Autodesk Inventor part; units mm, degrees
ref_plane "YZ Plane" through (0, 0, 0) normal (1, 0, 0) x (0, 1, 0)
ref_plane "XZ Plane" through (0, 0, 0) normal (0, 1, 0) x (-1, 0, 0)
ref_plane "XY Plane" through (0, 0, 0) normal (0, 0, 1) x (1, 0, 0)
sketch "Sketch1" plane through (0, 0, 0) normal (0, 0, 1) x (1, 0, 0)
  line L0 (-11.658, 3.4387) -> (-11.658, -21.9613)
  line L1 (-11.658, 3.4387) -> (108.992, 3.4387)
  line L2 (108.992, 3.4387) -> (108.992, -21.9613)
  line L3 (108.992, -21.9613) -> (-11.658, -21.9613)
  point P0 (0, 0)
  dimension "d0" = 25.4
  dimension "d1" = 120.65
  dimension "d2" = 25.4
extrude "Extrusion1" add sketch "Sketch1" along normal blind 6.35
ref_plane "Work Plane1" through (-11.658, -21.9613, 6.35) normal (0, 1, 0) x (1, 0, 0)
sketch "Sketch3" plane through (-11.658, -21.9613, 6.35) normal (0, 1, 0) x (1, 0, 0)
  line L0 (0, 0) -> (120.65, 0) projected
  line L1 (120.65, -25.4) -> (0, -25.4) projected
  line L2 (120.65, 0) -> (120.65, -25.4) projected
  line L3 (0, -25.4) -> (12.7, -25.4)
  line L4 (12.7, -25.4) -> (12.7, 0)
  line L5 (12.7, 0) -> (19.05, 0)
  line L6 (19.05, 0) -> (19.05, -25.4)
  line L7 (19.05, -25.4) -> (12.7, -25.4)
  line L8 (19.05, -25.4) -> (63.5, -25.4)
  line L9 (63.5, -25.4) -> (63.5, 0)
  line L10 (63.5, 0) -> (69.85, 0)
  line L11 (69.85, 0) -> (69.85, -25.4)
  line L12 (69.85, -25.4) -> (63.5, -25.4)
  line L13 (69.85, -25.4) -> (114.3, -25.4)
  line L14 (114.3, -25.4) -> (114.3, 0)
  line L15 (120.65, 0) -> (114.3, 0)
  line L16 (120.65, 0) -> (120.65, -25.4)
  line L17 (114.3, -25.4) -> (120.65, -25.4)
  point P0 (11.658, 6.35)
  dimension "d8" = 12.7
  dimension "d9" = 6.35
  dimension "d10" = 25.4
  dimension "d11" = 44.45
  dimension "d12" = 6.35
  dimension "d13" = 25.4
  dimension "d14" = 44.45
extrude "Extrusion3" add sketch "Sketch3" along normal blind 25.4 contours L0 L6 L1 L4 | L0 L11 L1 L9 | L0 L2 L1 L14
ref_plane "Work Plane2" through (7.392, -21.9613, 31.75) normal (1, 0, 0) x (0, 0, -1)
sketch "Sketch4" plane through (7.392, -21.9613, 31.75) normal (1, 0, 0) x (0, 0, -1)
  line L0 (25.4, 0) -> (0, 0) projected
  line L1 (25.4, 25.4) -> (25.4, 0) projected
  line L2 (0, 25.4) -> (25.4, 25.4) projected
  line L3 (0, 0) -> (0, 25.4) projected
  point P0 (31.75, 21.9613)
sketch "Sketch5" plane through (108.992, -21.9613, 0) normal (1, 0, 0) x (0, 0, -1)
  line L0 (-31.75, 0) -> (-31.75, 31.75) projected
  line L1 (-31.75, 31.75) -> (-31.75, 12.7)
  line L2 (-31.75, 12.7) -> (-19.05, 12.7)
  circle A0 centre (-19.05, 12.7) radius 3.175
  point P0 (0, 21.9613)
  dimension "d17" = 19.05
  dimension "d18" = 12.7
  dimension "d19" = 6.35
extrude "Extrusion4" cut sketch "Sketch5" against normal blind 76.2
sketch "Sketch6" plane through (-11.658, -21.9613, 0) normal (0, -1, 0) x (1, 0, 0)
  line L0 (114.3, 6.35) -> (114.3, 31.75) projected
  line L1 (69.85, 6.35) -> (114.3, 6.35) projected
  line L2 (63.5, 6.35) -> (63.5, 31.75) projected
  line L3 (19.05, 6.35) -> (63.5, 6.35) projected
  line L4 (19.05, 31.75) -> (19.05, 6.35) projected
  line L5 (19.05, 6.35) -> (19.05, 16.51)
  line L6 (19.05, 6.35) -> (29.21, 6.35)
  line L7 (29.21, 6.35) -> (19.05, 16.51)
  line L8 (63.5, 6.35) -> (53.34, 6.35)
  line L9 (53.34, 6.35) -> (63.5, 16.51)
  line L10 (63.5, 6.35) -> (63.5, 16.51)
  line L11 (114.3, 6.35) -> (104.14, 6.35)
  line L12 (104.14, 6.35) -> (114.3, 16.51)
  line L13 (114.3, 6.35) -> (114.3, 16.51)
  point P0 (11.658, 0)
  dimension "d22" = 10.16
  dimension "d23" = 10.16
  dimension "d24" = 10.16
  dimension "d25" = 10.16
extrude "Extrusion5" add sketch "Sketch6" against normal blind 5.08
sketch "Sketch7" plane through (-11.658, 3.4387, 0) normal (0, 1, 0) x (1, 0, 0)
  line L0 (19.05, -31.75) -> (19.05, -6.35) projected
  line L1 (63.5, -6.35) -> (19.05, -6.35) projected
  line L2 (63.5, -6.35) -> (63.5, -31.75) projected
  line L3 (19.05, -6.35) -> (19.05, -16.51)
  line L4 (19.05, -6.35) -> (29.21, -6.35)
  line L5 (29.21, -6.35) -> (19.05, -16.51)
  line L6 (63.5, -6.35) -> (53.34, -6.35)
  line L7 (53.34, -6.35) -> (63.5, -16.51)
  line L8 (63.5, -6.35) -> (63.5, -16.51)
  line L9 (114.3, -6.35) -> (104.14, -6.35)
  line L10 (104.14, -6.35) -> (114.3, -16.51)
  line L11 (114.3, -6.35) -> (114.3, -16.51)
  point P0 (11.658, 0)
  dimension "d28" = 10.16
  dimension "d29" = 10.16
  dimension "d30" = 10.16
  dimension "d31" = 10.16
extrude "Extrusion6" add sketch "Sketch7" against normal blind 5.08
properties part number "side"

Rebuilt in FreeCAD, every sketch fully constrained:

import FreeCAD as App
import Part
import Sketcher
Q = App.Units.Quantity

doc = App.newDocument("Part")
body = doc.addObject("PartDesign::Body", "Body")

sketch1 = doc.addObject("Sketcher::SketchObject", "Sketch")
body.addObject(sketch1)
sketch1.AttachmentSupport = (doc.XY_Plane, [""])
sketch1.MapMode = "FlatFace"
sketch1.addGeometry([
    Part.LineSegment(App.Vector(109, 3, 0), App.Vector(-12, 3, 0)),
    Part.LineSegment(App.Vector(-12, 3, 0), App.Vector(-12, -22, 0)),
    Part.LineSegment(App.Vector(-12, -22, 0), App.Vector(109, -22, 0)),
    Part.LineSegment(App.Vector(109, -22, 0), App.Vector(109, 3, 0)),
], False)
sketch1.addConstraint([
    Sketcher.Constraint("Coincident", 0, 2, 1, 1),
    Sketcher.Constraint("Coincident", 1, 2, 2, 1),
    Sketcher.Constraint("Coincident", 2, 2, 3, 1),
    Sketcher.Constraint("Coincident", 3, 2, 0, 1),
    Sketcher.Constraint("Horizontal", 0),
    Sketcher.Constraint("Vertical", 1),
    Sketcher.Constraint("Horizontal", 2),
    Sketcher.Constraint("Vertical", 3),
    Sketcher.Constraint("DistanceY", 1, 2, 1, 1, Q("1 in")),
    Sketcher.Constraint("DistanceX", 0, 2, 0, 1, Q("4.75 in")),
    Sketcher.Constraint("DistanceX", 0, 2, -1, 1, 11.658),
    Sketcher.Constraint("DistanceY", -1, 1, 0, 2, 3.4387),
])
pad1 = doc.addObject("PartDesign::Pad", "Pad")
body.addObject(pad1)
pad1.Profile = sketch1
pad1.Length = Q("0.25 in")

sketch2 = doc.addObject("Sketcher::SketchObject", "Sketch001")
body.addObject(sketch2)
sketch2.AttachmentSupport = (doc.XZ_Plane, [""])
sketch2.MapMode = "FlatFace"
sketch2.AttachmentOffset = App.Placement(App.Vector(0, 0, 21.9613), App.Rotation())
sketch2.addGeometry([
    Part.LineSegment(App.Vector(7, 6, 0), App.Vector(1, 6, 0)),
    Part.LineSegment(App.Vector(1, 6, 0), App.Vector(1, 32, 0)),
    Part.LineSegment(App.Vector(1, 32, 0), App.Vector(7, 32, 0)),
    Part.LineSegment(App.Vector(7, 32, 0), App.Vector(7, 6, 0)),
    Part.LineSegment(App.Vector(58, 6, 0), App.Vector(52, 6, 0)),
    Part.LineSegment(App.Vector(52, 6, 0), App.Vector(52, 32, 0)),
    Part.LineSegment(App.Vector(52, 32, 0), App.Vector(58, 32, 0)),
    Part.LineSegment(App.Vector(58, 32, 0), App.Vector(58, 6, 0)),
    Part.LineSegment(App.Vector(109, 6, 0), App.Vector(103, 6, 0)),
    Part.LineSegment(App.Vector(103, 6, 0), App.Vector(103, 32, 0)),
    Part.LineSegment(App.Vector(103, 32, 0), App.Vector(109, 32, 0)),
    Part.LineSegment(App.Vector(109, 32, 0), App.Vector(109, 6, 0)),
], False)
sketch2.addConstraint([
    Sketcher.Constraint("Coincident", 0, 2, 1, 1),
    Sketcher.Constraint("Coincident", 1, 2, 2, 1),
    Sketcher.Constraint("Coincident", 2, 2, 3, 1),
    Sketcher.Constraint("Coincident", 3, 2, 0, 1),
    Sketcher.Constraint("Coincident", 4, 2, 5, 1),
    Sketcher.Constraint("Coincident", 5, 2, 6, 1),
    Sketcher.Constraint("Coincident", 6, 2, 7, 1),
    Sketcher.Constraint("Coincident", 7, 2, 4, 1),
    Sketcher.Constraint("Coincident", 8, 2, 9, 1),
    Sketcher.Constraint("Coincident", 9, 2, 10, 1),
    Sketcher.Constraint("Coincident", 10, 2, 11, 1),
    Sketcher.Constraint("Coincident", 11, 2, 8, 1),
    Sketcher.Constraint("Horizontal", 0),
    Sketcher.Constraint("Vertical", 1),
    Sketcher.Constraint("Horizontal", 2),
    Sketcher.Constraint("Vertical", 3),
    Sketcher.Constraint("Horizontal", 4),
    Sketcher.Constraint("Vertical", 5),
    Sketcher.Constraint("Horizontal", 6),
    Sketcher.Constraint("Vertical", 7),
    Sketcher.Constraint("Horizontal", 8),
    Sketcher.Constraint("Vertical", 9),
    Sketcher.Constraint("Horizontal", 10),
    Sketcher.Constraint("Vertical", 11),
    Sketcher.Constraint("Horizontal", 3, 2, 4, 2),
    Sketcher.Constraint("Horizontal", 2, 2, 5, 2),
    Sketcher.Constraint("Horizontal", 7, 2, 8, 2),
    Sketcher.Constraint("Horizontal", 6, 2, 9, 2),
    Sketcher.Constraint("Equal", 2, 4),
    Sketcher.Constraint("Equal", 6, 8),
    Sketcher.Constraint("DistanceY", 1, 1, 1, 2, Q("1 in")),
    Sketcher.Constraint("DistanceX", 0, 2, 0, 1, Q("0.25 in")),
    Sketcher.Constraint("DistanceY", -1, 1, 0, 2, Q("0.25 in")),
    Sketcher.Constraint("DistanceX", 3, 2, 4, 2, Q("1.75 in")),
    Sketcher.Constraint("DistanceX", 7, 2, 8, 2, Q("1.75 in")),
    Sketcher.Constraint("DistanceX", -1, 1, 0, 2, 1.042),
])
pad2 = doc.addObject("PartDesign::Pad", "Pad001")
body.addObject(pad2)
pad2.Profile = sketch2
pad2.Length = Q("1 in")
pad2.Reversed = True

sketch3 = doc.addObject("Sketcher::SketchObject", "Sketch002")
body.addObject(sketch3)
sketch3.AttachmentSupport = (doc.YZ_Plane, [""])
sketch3.MapMode = "FlatFace"
sketch3.AttachmentOffset = App.Placement(App.Vector(0, 0, 108.992), App.Rotation())
sketch3.addGeometry(Part.Circle(App.Vector(-9.3, 19.1, 0), App.Vector(0, 0, 1), 3.2), False)
sketch3.addConstraint([
    Sketcher.Constraint("Diameter", 0, Q("0.25 in")),
    Sketcher.Constraint("DistanceY", -1, 1, 0, 3, Q("0.75 in")),
    Sketcher.Constraint("DistanceX", 0, 3, -1, 1, 9.2613),
])
pocket1 = doc.addObject("PartDesign::Pocket", "Pocket")
body.addObject(pocket1)
pocket1.Profile = sketch3
pocket1.Length = Q("3 in")

sketch4 = doc.addObject("Sketcher::SketchObject", "Sketch003")
body.addObject(sketch4)
sketch4.AttachmentSupport = (doc.XZ_Plane, [""])
sketch4.MapMode = "FlatFace"
sketch4.AttachmentOffset = App.Placement(App.Vector(0, 0, 21.9613), App.Rotation())
sketch4.addGeometry([
    Part.LineSegment(App.Vector(92, 6, 0), App.Vector(103, 6, 0)),
    Part.LineSegment(App.Vector(103, 6, 0), App.Vector(103, 17, 0)),
    Part.LineSegment(App.Vector(103, 17, 0), App.Vector(92, 6, 0)),
    Part.LineSegment(App.Vector(42, 6, 0), App.Vector(52, 6, 0)),
    Part.LineSegment(App.Vector(52, 6, 0), App.Vector(52, 17, 0)),
    Part.LineSegment(App.Vector(52, 17, 0), App.Vector(42, 6, 0)),
    Part.LineSegment(App.Vector(7, 6, 0), App.Vector(18, 6, 0)),
    Part.LineSegment(App.Vector(18, 6, 0), App.Vector(7, 17, 0)),
    Part.LineSegment(App.Vector(7, 17, 0), App.Vector(7, 6, 0)),
], False)
sketch4.addConstraint([
    Sketcher.Constraint("Coincident", 0, 2, 1, 1),
    Sketcher.Constraint("Coincident", 1, 2, 2, 1),
    Sketcher.Constraint("Coincident", 2, 2, 0, 1),
    Sketcher.Constraint("Coincident", 3, 2, 4, 1),
    Sketcher.Constraint("Coincident", 4, 2, 5, 1),
    Sketcher.Constraint("Coincident", 5, 2, 3, 1),
    Sketcher.Constraint("Coincident", 6, 2, 7, 1),
    Sketcher.Constraint("Coincident", 7, 2, 8, 1),
    Sketcher.Constraint("Coincident", 8, 2, 6, 1),
    Sketcher.Constraint("Horizontal", 0),
    Sketcher.Constraint("Vertical", 1),
    Sketcher.Constraint("Horizontal", 3),
    Sketcher.Constraint("Vertical", 4),
    Sketcher.Constraint("Horizontal", 6),
    Sketcher.Constraint("Vertical", 8),
    Sketcher.Constraint("Parallel", 2, 5),
    Sketcher.Constraint("Perpendicular", 5, 7),
    Sketcher.Constraint("Horizontal", 2, 2, 3, 2),
    Sketcher.Constraint("Horizontal", 1, 2, 4, 2),
    Sketcher.Constraint("Horizontal", 5, 2, 6, 2),
    Sketcher.Constraint("Horizontal", 4, 2, 7, 2),
    Sketcher.Constraint("Equal", 3, 6),
    Sketcher.Constraint("DistanceX", 0, 1, 0, 2, Q("0.4 in")),
    Sketcher.Constraint("DistanceX", 3, 2, 0, 2, Q("2 in")),
    Sketcher.Constraint("DistanceY", -1, 1, 0, 2, Q("0.25 in")),
    Sketcher.Constraint("DistanceX", 6, 2, 5, 2, Q("0.95 in")),
    Sketcher.Constraint("DistanceX", -1, 1, 0, 2, 102.642),
])
pad3 = doc.addObject("PartDesign::Pad", "Pad002")
body.addObject(pad3)
pad3.Profile = sketch4
pad3.Length = Q("0.2 in")
pad3.Reversed = True

sketch5 = doc.addObject("Sketcher::SketchObject", "Sketch004")
body.addObject(sketch5)
sketch5.AttachmentSupport = (doc.XZ_Plane, [""])
sketch5.MapMode = "FlatFace"
sketch5.AttachmentOffset = App.Placement(App.Vector(0, 0, -3.4387), App.Rotation())
sketch5.addGeometry([
    Part.LineSegment(App.Vector(52, 6, 0), App.Vector(42, 6, 0)),
    Part.LineSegment(App.Vector(42, 6, 0), App.Vector(52, 17, 0)),
    Part.LineSegment(App.Vector(52, 17, 0), App.Vector(52, 6, 0)),
    Part.LineSegment(App.Vector(7, 6, 0), App.Vector(7, 17, 0)),
    Part.LineSegment(App.Vector(7, 17, 0), App.Vector(18, 6, 0)),
    Part.LineSegment(App.Vector(18, 6, 0), App.Vector(7, 6, 0)),
    Part.LineSegment(App.Vector(103, 17, 0), App.Vector(103, 6, 0)),
    Part.LineSegment(App.Vector(103, 6, 0), App.Vector(92, 6, 0)),
    Part.LineSegment(App.Vector(92, 6, 0), App.Vector(103, 17, 0)),
], False)
sketch5.addConstraint([
    Sketcher.Constraint("Coincident", 0, 2, 1, 1),
    Sketcher.Constraint("Coincident", 1, 2, 2, 1),
    Sketcher.Constraint("Coincident", 2, 2, 0, 1),
    Sketcher.Constraint("Coincident", 3, 2, 4, 1),
    Sketcher.Constraint("Coincident", 4, 2, 5, 1),
    Sketcher.Constraint("Coincident", 5, 2, 3, 1),
    Sketcher.Constraint("Coincident", 6, 2, 7, 1),
    Sketcher.Constraint("Coincident", 7, 2, 8, 1),
    Sketcher.Constraint("Coincident", 8, 2, 6, 1),
    Sketcher.Constraint("Horizontal", 0),
    Sketcher.Constraint("Vertical", 2),
    Sketcher.Constraint("Vertical", 3),
    Sketcher.Constraint("Horizontal", 5),
    Sketcher.Constraint("Vertical", 6),
    Sketcher.Constraint("Horizontal", 7),
    Sketcher.Constraint("Perpendicular", 1, 4),
    Sketcher.Constraint("Perpendicular", 4, 8),
    Sketcher.Constraint("Horizontal", 1, 2, 3, 2),
    Sketcher.Constraint("Horizontal", 2, 2, 4, 2),
    Sketcher.Constraint("Horizontal", 5, 2, 6, 2),
    Sketcher.Constraint("Horizontal", 3, 2, 8, 2),
    Sketcher.Constraint("Equal", 0, 5),
    Sketcher.Constraint("DistanceX", 0, 2, 0, 1, Q("0.4 in")),
    Sketcher.Constraint("DistanceX", 2, 2, 6, 2, Q("2 in")),
    Sketcher.Constraint("DistanceY", -1, 1, 0, 2, Q("0.25 in")),
    Sketcher.Constraint("DistanceX", 3, 2, 0, 2, Q("1.35 in")),
    Sketcher.Constraint("DistanceX", -1, 1, 0, 2, 41.682),
])
pad4 = doc.addObject("PartDesign::Pad", "Pad003")
body.addObject(pad4)
pad4.Profile = sketch5
pad4.Length = Q("0.2 in")

doc.recompute()
